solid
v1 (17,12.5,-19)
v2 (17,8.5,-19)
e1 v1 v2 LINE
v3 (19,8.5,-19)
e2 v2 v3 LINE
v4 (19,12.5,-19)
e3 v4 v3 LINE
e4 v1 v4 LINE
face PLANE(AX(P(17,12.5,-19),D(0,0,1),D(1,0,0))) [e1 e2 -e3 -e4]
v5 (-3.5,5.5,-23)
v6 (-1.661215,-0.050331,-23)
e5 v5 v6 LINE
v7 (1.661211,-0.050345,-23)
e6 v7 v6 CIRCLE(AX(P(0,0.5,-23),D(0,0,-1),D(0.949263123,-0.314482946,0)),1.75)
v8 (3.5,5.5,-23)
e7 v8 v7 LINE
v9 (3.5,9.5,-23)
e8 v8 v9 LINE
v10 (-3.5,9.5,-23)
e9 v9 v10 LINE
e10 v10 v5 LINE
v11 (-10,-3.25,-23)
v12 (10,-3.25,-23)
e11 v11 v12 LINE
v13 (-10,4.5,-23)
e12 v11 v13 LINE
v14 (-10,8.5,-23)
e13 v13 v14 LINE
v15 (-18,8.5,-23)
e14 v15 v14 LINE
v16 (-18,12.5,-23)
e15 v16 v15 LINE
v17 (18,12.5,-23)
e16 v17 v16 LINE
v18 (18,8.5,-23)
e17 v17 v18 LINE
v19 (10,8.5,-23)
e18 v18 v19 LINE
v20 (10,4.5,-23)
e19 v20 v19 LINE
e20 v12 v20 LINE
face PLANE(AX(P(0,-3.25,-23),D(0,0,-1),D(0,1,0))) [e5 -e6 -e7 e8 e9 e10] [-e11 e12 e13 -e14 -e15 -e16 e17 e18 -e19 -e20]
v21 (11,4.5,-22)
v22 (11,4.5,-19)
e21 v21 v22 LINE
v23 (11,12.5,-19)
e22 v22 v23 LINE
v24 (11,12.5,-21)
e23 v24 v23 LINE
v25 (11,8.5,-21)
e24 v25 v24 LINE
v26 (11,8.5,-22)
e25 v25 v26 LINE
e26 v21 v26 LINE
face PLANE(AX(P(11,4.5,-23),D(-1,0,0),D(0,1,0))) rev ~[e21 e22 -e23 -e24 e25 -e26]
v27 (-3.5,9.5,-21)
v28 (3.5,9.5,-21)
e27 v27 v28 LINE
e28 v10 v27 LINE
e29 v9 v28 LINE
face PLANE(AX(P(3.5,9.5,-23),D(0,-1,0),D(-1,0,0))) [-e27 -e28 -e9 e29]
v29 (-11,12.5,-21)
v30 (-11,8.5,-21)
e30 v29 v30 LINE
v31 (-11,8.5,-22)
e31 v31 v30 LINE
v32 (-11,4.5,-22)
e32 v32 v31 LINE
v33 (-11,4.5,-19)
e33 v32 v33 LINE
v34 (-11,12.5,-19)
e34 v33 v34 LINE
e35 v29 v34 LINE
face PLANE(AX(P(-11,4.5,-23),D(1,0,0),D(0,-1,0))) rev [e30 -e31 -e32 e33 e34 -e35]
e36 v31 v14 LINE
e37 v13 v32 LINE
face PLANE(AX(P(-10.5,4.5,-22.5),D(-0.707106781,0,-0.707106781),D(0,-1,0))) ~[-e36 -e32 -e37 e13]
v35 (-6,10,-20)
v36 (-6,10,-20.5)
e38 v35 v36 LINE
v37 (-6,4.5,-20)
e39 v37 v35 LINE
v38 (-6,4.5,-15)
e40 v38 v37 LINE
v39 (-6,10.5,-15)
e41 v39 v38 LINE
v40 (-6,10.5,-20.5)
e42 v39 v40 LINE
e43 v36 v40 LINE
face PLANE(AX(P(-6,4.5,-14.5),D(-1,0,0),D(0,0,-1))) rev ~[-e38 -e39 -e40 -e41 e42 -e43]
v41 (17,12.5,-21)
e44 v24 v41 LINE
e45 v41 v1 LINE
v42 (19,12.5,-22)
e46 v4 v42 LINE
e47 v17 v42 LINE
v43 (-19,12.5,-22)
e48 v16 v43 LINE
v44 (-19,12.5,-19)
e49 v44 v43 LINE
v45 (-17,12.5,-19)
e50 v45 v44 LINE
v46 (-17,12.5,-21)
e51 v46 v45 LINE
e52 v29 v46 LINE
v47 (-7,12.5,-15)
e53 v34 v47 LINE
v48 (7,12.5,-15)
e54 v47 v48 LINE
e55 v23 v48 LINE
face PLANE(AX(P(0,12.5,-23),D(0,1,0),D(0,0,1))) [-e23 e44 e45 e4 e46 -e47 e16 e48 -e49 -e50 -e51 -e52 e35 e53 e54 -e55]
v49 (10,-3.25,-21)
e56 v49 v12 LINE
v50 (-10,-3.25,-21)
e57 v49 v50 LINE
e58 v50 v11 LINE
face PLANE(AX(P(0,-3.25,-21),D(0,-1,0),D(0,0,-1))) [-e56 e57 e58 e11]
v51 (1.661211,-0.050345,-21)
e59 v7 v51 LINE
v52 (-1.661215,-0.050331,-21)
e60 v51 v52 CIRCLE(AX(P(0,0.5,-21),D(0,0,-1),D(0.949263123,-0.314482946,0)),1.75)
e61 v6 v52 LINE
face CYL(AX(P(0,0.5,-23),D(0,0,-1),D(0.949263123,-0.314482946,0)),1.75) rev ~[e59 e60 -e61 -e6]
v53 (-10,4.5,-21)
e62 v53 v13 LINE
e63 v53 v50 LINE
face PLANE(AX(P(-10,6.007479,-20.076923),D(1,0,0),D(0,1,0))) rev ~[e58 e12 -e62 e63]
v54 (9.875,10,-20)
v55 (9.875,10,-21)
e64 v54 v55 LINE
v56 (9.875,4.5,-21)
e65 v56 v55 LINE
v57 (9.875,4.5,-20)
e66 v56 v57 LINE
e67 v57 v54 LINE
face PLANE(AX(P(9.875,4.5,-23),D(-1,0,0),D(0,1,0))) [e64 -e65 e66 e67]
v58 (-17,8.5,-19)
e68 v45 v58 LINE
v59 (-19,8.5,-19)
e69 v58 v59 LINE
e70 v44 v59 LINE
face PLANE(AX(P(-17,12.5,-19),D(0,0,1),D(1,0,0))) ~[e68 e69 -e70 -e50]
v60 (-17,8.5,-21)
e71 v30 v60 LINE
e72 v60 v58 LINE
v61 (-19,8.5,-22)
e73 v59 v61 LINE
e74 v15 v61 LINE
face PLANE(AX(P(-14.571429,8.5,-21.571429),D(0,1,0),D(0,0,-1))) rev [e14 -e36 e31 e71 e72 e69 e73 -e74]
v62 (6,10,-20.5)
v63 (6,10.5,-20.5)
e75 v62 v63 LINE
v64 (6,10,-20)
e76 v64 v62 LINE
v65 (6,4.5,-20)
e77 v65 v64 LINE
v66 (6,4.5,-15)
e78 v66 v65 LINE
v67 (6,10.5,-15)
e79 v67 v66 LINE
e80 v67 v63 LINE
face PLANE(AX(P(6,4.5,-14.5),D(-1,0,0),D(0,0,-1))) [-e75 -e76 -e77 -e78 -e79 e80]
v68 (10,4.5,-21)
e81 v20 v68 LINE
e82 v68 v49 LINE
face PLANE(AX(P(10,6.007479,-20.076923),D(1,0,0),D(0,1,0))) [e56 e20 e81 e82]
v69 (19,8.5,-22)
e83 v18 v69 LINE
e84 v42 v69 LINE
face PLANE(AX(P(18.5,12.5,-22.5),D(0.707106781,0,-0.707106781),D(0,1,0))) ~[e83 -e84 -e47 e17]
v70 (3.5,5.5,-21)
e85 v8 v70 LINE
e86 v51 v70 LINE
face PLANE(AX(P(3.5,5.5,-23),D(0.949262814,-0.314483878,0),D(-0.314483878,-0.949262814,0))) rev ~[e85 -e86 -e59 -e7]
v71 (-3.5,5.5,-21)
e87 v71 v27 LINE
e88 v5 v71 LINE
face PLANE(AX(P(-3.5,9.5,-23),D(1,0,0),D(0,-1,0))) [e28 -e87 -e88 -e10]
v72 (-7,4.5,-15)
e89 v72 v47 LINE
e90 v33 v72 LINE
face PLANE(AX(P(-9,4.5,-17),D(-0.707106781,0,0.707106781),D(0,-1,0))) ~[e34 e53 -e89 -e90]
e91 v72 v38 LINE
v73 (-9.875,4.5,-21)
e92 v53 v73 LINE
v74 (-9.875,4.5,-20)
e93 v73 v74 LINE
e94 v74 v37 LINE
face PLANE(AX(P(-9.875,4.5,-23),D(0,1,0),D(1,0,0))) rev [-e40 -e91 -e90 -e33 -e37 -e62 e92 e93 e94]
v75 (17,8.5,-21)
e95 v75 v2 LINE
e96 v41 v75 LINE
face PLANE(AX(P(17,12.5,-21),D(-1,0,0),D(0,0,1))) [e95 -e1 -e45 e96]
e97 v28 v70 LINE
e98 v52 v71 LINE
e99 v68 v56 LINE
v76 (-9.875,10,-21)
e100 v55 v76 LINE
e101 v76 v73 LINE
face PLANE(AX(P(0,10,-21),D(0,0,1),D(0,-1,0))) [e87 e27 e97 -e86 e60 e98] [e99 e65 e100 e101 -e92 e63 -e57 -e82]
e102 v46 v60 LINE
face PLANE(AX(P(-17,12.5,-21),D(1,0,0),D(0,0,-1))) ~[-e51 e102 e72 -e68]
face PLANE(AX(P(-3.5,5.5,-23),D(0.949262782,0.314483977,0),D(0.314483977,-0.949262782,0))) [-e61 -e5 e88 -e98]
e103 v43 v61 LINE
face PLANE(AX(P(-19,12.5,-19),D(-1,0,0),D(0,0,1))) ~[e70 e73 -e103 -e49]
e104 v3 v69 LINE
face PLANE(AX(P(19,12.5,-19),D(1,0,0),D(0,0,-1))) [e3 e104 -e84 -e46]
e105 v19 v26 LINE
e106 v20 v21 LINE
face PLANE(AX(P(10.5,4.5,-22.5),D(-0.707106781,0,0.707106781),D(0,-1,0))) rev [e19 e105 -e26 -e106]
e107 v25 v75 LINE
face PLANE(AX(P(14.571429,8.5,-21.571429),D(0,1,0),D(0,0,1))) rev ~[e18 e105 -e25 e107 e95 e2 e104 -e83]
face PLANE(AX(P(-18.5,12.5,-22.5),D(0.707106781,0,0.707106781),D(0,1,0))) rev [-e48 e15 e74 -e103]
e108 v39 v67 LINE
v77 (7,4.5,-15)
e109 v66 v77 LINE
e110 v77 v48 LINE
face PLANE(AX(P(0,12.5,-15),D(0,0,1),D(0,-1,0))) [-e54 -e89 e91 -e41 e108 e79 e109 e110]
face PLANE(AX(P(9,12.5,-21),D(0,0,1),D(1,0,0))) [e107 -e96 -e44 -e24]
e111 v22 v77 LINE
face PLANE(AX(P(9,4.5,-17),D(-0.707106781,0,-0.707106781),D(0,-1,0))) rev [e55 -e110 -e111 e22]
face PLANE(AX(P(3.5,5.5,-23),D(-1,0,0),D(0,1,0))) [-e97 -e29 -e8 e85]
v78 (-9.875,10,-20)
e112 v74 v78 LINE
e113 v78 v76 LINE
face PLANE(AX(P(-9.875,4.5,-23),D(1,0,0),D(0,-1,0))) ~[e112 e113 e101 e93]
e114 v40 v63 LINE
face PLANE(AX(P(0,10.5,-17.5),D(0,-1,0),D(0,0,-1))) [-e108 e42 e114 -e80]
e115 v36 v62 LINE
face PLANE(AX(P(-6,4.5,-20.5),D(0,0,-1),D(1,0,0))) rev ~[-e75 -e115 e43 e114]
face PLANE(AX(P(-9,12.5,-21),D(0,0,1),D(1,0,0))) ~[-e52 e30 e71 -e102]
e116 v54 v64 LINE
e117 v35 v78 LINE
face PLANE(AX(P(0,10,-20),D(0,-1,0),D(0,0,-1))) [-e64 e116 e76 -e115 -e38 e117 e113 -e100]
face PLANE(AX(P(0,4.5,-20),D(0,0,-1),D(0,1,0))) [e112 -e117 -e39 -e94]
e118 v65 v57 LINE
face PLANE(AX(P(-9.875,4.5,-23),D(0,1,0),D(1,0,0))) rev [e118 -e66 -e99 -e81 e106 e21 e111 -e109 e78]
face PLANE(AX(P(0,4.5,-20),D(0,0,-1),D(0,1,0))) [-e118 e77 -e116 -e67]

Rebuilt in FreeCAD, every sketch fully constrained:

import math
import FreeCAD as App
import Part
import Sketcher

V = App.Vector


def edges_at(feature, points):
    """Names of the edges that pass closest to the given points."""
    edges = feature.Shape.Edges
    near = lambda p: min(range(len(edges)), key=lambda i: edges[i].distToShape(Part.Vertex(*p))[0])
    return sorted({f"Edge{near(p) + 1}" for p in points})


def add_polygon(sketch, points):
    """Adds a closed chain of lines whose ends are joined by coincident constraints."""
    first, n = sketch.GeometryCount, len(points)
    for a, b in zip(points, points[1:] + points[:1]):
        sketch.addGeometry(Part.LineSegment(App.Vector(*a, 0), App.Vector(*b, 0)), False)
    for i in range(n):
        sketch.addConstraint(Sketcher.Constraint("Coincident", first + i, 2, first + (i + 1) % n, 1))

doc = App.newDocument("Part")
body = doc.addObject("PartDesign::Body", "Body")

sketch1 = body.newObject("Sketcher::SketchObject", "Sketch")
sketch1.AttachmentSupport = (doc.getObject("YZ_Plane"), [""])
sketch1.MapMode = "FlatFace"
add_polygon(sketch1, [(-3.2, -21), (-3.2, -23), (12.5, -23), (12.5, -15), (4.5, -15), (4.5, -20), (10, -20), (10, -21)])
sketch1.addConstraint(Sketcher.Constraint("Vertical", 0))
sketch1.addConstraint(Sketcher.Constraint("Horizontal", 1))
sketch1.addConstraint(Sketcher.Constraint("Vertical", 2))
sketch1.addConstraint(Sketcher.Constraint("Horizontal", 3))
sketch1.addConstraint(Sketcher.Constraint("Vertical", 4))
sketch1.addConstraint(Sketcher.Constraint("Horizontal", 5))
sketch1.addConstraint(Sketcher.Constraint("Vertical", 6))
sketch1.addConstraint(Sketcher.Constraint("Horizontal", 7))
sketch1.addConstraint(Sketcher.Constraint("Equal", 3, 2))
sketch1.addConstraint(Sketcher.Constraint("DistanceX", 3, 2, 3, 1, 8.0))
sketch1.addConstraint(Sketcher.Constraint("DistanceY", 0, 2, 0, 1, 2.0))
sketch1.addConstraint(Sketcher.Constraint("DistanceY", 4, 2, 4, 1, 5.0))
sketch1.addConstraint(Sketcher.Constraint("DistanceX", 5, 1, 5, 2, 5.5))
sketch1.addConstraint(Sketcher.Constraint("DistanceY", 0, 2, -1, 1, 23.0))
sketch1.addConstraint(Sketcher.Constraint("DistanceX", -1, 1, 5, 2, 10.0))
sketch1.addConstraint(Sketcher.Constraint("DistanceX", 1, 1, 1, 2, 15.75))
pad1 = body.newObject("PartDesign::Pad", "Pad")
pad1.Profile = sketch1
pad1.Length = 20
pad1.Midplane = True

sketch2 = body.newObject("Sketcher::SketchObject", "Sketch001")
sketch2.AttachmentSupport = (doc.getObject("XY_Plane"), [""])
sketch2.MapMode = "FlatFace"
sketch2.AttachmentOffset = App.Placement(V(0, 0, -23), App.Rotation())
add_polygon(sketch2, [(11, 4.5), (9.9, 4.5), (9.9, 12.5), (11, 12.5)])
sketch2.addConstraint(Sketcher.Constraint("Horizontal", 0))
sketch2.addConstraint(Sketcher.Constraint("Vertical", 1))
sketch2.addConstraint(Sketcher.Constraint("Horizontal", 2))
sketch2.addConstraint(Sketcher.Constraint("Vertical", 3))
sketch2.addConstraint(Sketcher.Constraint("DistanceY", 1, 1, 1, 2, 8.0))
sketch2.addConstraint(Sketcher.Constraint("DistanceX", -1, 1, 2, 2, 11.0))
sketch2.addConstraint(Sketcher.Constraint("DistanceY", -1, 1, 0, 2, 4.5))
sketch2.addConstraint(Sketcher.Constraint("DistanceX", 0, 2, 0, 1, 1.125))
pad2 = body.newObject("PartDesign::Pad", "Pad001")
pad2.Profile = sketch2
pad2.Length = 8
doc.recompute()

mirrored = body.newObject("PartDesign::Mirrored", "Mirrored")
mirrored.Originals = [pad2]
mirrored.MirrorPlane = (doc.getObject("YZ_Plane"), [""])
body.Tip = mirrored

sketch3 = body.newObject("Sketcher::SketchObject", "Sketch002")
sketch3.AttachmentSupport = (doc.getObject("XZ_Plane"), [""])
sketch3.MapMode = "FlatFace"
sketch3.AttachmentOffset = App.Placement(V(0, 0, -4.5), App.Rotation())
add_polygon(sketch3, [(6, -14), (-6, -14), (-6, -20), (6, -20)])
sketch3.addConstraint(Sketcher.Constraint("Horizontal", 0))
sketch3.addConstraint(Sketcher.Constraint("Vertical", 1))
sketch3.addConstraint(Sketcher.Constraint("Horizontal", 2))
sketch3.addConstraint(Sketcher.Constraint("Vertical", 3))
sketch3.addConstraint(Sketcher.Constraint("DistanceX", 0, 2, 0, 1, 12.0))
sketch3.addConstraint(Sketcher.Constraint("DistanceY", 1, 2, 1, 1, 6.0))
sketch3.addConstraint(Sketcher.Constraint("DistanceX", 0, 2, -1, 1, 6.0))
sketch3.addConstraint(Sketcher.Constraint("DistanceY", 0, 2, -1, 1, 14.5))
pocket1 = body.newObject("PartDesign::Pocket", "Pocket")
pocket1.Profile = sketch3
pocket1.Length = 6

sketch4 = body.newObject("Sketcher::SketchObject", "Sketch003")
sketch4.AttachmentSupport = (doc.getObject("XY_Plane"), [""])
sketch4.MapMode = "FlatFace"
sketch4.AttachmentOffset = App.Placement(V(0, 0, -23), App.Rotation())
sketch4.addGeometry(Part.LineSegment(V(3.5, 9.5, 0), V(3.5, 5.5, 0)), False)
sketch4.addGeometry(Part.LineSegment(V(3.5, 5.5, 0), V(1.7, -0.1, 0)), False)
sketch4.addGeometry(Part.ArcOfCircle(Part.Circle(V(0, 0.5, 0), V(0, 0, 1), 1.8), math.radians(-162), math.radians(-18)), False)
sketch4.addGeometry(Part.LineSegment(V(-1.7, -0.1, 0), V(-3.5, 5.5, 0)), False)
sketch4.addGeometry(Part.LineSegment(V(-3.5, 5.5, 0), V(-3.5, 9.5, 0)), False)
sketch4.addGeometry(Part.LineSegment(V(-3.5, 9.5, 0), V(3.5, 9.5, 0)), False)
sketch4.addConstraint(Sketcher.Constraint("Coincident", 0, 2, 1, 1))
sketch4.addConstraint(Sketcher.Constraint("Tangent", 1, 2, 2, 2))
sketch4.addConstraint(Sketcher.Constraint("Coincident", 2, 1, 3, 1))
sketch4.addConstraint(Sketcher.Constraint("Coincident", 3, 2, 4, 1))
sketch4.addConstraint(Sketcher.Constraint("Coincident", 4, 2, 5, 1))
sketch4.addConstraint(Sketcher.Constraint("Coincident", 5, 2, 0, 1))
sketch4.addConstraint(Sketcher.Constraint("Vertical", 0))
sketch4.addConstraint(Sketcher.Constraint("Vertical", 4))
sketch4.addConstraint(Sketcher.Constraint("Horizontal", 5))
sketch4.addConstraint(Sketcher.Constraint("Symmetric", 0, 2, 3, 2, -2))
sketch4.addConstraint(Sketcher.Constraint("PointOnObject", 2, 3, -2))
sketch4.addConstraint(Sketcher.Constraint("DistanceX", 5, 1, 5, 2, 7.0))
sketch4.addConstraint(Sketcher.Constraint("DistanceY", 0, 2, 0, 1, 4.0))
sketch4.addConstraint(Sketcher.Constraint("Radius", 2, 1.75))
sketch4.addConstraint(Sketcher.Constraint("DistanceY", 2, 3, 0, 2, 5.0))
sketch4.addConstraint(Sketcher.Constraint("DistanceY", -1, 1, 2, 3, 0.5))
sketch4.addConstraint(Sketcher.Constraint("Distance", 3, 5.846991))
pocket2 = body.newObject("PartDesign::Pocket", "Pocket001")
pocket2.Profile = sketch4
pocket2.Length = 5
pocket2.Reversed = True
doc.recompute()

chamfer = body.newObject("PartDesign::Chamfer", "Chamfer")
chamfer.Base = (pocket2, edges_at(pocket2, [(11, 8.5, -23), (-11, 8.5, -23)]))
chamfer.Size = 1
doc.recompute()

chamfer2 = body.newObject("PartDesign::Chamfer", "Chamfer001")
chamfer2.Base = (chamfer, edges_at(chamfer, [(-11, 8.5, -15), (11, 8.5, -15)]))
chamfer2.Size = 4

sketch5 = body.newObject("Sketcher::SketchObject", "Sketch004")
sketch5.AttachmentSupport = (doc.getObject("XZ_Plane"), [""])
sketch5.MapMode = "FlatFace"
sketch5.AttachmentOffset = App.Placement(V(0, 0, -12.5), App.Rotation())
add_polygon(sketch5, [(9, -23), (9, -21), (17, -21), (17, -19), (19, -19), (19, -23)])
sketch5.addConstraint(Sketcher.Constraint("Vertical", 0))
sketch5.addConstraint(Sketcher.Constraint("Horizontal", 1))
sketch5.addConstraint(Sketcher.Constraint("Vertical", 2))
sketch5.addConstraint(Sketcher.Constraint("Horizontal", 3))
sketch5.addConstraint(Sketcher.Constraint("Vertical", 4))
sketch5.addConstraint(Sketcher.Constraint("Horizontal", 5))
sketch5.addConstraint(Sketcher.Constraint("Equal", 3, 0))
sketch5.addConstraint(Sketcher.Constraint("Equal", 0, 2))
sketch5.addConstraint(Sketcher.Constraint("DistanceX", 1, 1, 1, 2, 8.0))
sketch5.addConstraint(Sketcher.Constraint("DistanceX", 3, 1, 3, 2, 2.0))
sketch5.addConstraint(Sketcher.Constraint("DistanceX", -1, 1, 0, 2, 9.0))
sketch5.addConstraint(Sketcher.Constraint("DistanceY", 0, 2, -1, 1, 21.0))
pad3 = body.newObject("PartDesign::Pad", "Pad002")
pad3.Profile = sketch5
pad3.Length = 4
doc.recompute()

mirrored2 = body.newObject("PartDesign::Mirrored", "Mirrored001")
mirrored2.Originals = [pad3]
mirrored2.MirrorPlane = (doc.getObject("YZ_Plane"), [""])
body.Tip = mirrored2
doc.recompute()

chamfer3 = body.newObject("PartDesign::Chamfer", "Chamfer002")
chamfer3.Base = (mirrored2, edges_at(mirrored2, [(-19, 10.5, -23), (19, 10.5, -23)]))
chamfer3.Size = 1

doc.recompute()
